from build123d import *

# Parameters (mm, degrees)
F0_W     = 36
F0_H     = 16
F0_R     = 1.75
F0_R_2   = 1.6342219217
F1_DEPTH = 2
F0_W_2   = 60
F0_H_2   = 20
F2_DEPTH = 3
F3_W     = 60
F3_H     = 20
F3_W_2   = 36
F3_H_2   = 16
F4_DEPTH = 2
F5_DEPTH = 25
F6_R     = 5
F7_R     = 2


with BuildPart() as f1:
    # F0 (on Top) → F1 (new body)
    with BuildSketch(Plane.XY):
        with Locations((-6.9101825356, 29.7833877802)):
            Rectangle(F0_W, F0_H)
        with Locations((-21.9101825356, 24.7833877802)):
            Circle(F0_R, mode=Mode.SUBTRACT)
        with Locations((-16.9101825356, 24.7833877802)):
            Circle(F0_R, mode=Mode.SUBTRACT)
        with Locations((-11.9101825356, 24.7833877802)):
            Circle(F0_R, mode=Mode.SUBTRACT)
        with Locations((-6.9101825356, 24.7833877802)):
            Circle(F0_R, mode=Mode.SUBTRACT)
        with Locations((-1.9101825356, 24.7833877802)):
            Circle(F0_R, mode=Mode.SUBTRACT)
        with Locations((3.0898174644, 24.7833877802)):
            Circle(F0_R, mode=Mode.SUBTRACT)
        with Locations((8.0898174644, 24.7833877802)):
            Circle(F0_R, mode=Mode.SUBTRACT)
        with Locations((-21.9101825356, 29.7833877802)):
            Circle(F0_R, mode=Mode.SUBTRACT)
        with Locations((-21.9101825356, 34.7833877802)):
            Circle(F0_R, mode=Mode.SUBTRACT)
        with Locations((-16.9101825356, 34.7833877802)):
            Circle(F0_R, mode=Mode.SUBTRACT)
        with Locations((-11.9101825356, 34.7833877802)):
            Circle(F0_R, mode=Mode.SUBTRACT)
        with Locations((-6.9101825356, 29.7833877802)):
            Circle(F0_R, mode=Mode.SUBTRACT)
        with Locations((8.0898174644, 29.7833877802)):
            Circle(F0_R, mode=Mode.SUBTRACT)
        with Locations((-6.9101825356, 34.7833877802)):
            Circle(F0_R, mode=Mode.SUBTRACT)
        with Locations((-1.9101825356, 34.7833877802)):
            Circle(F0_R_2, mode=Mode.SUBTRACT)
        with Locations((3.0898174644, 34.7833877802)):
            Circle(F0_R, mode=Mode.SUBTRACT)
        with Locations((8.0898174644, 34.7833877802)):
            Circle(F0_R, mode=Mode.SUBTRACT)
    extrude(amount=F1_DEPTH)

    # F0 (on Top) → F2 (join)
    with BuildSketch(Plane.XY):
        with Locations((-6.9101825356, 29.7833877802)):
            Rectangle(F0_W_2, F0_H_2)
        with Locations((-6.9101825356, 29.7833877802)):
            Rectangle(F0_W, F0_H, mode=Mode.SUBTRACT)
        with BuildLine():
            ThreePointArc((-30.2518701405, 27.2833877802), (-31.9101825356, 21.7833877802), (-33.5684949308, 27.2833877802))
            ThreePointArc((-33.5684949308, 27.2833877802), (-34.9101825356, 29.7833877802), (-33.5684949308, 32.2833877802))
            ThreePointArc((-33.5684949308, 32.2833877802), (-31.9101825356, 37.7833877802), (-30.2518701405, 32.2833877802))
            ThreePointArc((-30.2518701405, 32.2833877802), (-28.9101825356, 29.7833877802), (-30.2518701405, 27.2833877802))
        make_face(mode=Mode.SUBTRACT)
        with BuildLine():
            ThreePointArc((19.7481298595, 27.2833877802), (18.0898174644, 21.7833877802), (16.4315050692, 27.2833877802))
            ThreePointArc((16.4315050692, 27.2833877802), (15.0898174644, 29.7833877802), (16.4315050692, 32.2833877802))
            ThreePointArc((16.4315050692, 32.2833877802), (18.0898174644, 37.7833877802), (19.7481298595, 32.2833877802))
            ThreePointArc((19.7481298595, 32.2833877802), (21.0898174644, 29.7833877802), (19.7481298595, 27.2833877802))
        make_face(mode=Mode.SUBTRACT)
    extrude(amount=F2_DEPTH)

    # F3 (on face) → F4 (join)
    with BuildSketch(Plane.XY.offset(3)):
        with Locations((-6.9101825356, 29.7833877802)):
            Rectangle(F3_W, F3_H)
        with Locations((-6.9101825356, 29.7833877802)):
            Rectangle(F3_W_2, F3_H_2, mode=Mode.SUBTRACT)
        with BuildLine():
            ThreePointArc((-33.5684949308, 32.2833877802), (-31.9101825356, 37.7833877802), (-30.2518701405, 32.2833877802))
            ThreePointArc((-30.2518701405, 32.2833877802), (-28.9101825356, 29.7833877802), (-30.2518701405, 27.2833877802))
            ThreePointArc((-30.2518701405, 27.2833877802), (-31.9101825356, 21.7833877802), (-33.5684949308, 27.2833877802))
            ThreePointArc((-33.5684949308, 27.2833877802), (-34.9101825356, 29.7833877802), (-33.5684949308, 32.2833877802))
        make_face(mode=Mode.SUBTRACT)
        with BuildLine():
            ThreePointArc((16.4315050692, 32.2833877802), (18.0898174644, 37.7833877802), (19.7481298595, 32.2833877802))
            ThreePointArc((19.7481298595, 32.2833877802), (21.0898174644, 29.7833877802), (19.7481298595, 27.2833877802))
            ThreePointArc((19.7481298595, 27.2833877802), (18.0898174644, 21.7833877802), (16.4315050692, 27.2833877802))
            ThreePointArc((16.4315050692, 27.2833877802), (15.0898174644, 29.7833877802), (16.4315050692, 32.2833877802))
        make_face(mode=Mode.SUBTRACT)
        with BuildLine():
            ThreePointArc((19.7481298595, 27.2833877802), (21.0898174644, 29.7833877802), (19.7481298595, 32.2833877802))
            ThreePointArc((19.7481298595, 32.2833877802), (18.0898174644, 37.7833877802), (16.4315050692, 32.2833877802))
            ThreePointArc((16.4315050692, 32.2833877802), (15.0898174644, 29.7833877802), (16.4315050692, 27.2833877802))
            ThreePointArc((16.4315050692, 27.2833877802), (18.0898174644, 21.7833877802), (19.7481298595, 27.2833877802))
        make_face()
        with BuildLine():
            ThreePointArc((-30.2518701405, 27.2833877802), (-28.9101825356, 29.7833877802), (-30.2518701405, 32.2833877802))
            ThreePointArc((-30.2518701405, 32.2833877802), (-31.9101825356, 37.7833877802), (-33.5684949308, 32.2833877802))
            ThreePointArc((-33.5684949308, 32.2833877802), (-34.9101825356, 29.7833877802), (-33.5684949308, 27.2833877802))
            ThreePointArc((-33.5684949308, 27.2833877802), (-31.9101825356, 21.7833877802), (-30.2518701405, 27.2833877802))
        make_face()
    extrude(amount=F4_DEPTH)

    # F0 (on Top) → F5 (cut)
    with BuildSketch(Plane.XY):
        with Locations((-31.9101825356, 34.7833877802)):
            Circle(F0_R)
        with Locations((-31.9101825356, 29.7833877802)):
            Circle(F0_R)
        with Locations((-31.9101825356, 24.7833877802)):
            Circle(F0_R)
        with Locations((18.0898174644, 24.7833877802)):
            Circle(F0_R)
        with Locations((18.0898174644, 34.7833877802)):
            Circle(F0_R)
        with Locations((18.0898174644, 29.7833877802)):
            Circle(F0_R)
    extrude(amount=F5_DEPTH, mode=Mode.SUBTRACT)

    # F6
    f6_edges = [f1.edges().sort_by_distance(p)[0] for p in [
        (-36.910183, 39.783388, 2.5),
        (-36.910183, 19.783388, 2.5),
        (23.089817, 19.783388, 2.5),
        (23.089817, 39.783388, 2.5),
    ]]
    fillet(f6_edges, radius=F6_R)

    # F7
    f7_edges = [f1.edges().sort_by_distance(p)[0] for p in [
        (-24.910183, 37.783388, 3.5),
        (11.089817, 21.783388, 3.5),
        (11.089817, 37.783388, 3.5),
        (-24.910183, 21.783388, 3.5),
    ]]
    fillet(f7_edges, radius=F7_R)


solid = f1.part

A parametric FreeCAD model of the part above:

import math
import FreeCAD as App
import Part
import Sketcher

V = App.Vector
Q = App.Units.Quantity


def edges_at(feature, points):
    """Names of the edges that pass closest to the given points."""
    edges = feature.Shape.Edges
    near = lambda p: min(range(len(edges)), key=lambda i: edges[i].distToShape(Part.Vertex(*p))[0])
    return sorted({f"Edge{near(p) + 1}" for p in points})


def add_polygon(sketch, points):
    """Adds a closed chain of lines whose ends are joined by coincident constraints."""
    first, n = sketch.GeometryCount, len(points)
    for a, b in zip(points, points[1:] + points[:1]):
        sketch.addGeometry(Part.LineSegment(App.Vector(*a, 0), App.Vector(*b, 0)), False)
    for i in range(n):
        sketch.addConstraint(Sketcher.Constraint("Coincident", first + i, 2, first + (i + 1) % n, 1))

doc = App.newDocument("Part")
body = doc.addObject("PartDesign::Body", "Body")

sketch1 = body.newObject("Sketcher::SketchObject", "Sketch")
sketch1.AttachmentSupport = (doc.getObject("XY_Plane"), [""])
sketch1.MapMode = "FlatFace"
add_polygon(sketch1, [(-24.9, 37.8), (-24.9, 21.8), (11.1, 21.8), (11.1, 37.8)])
sketch1.addGeometry(Part.Circle(V(-21.9, 24.8, 0), V(0, 0, 1), 1.8), False)
sketch1.addGeometry(Part.Circle(V(-16.9, 24.8, 0), V(0, 0, 1), 1.8), False)
sketch1.addGeometry(Part.Circle(V(-11.9, 24.8, 0), V(0, 0, 1), 1.8), False)
sketch1.addGeometry(Part.Circle(V(-6.9, 24.8, 0), V(0, 0, 1), 1.8), False)
sketch1.addGeometry(Part.Circle(V(-1.9, 24.8, 0), V(0, 0, 1), 1.8), False)
sketch1.addGeometry(Part.Circle(V(3.1, 24.8, 0), V(0, 0, 1), 1.8), False)
sketch1.addGeometry(Part.Circle(V(8.1, 24.8, 0), V(0, 0, 1), 1.8), False)
sketch1.addGeometry(Part.Circle(V(-21.9, 29.8, 0), V(0, 0, 1), 1.8), False)
sketch1.addGeometry(Part.Circle(V(-21.9, 34.8, 0), V(0, 0, 1), 1.8), False)
sketch1.addGeometry(Part.Circle(V(-16.9, 34.8, 0), V(0, 0, 1), 1.8), False)
sketch1.addGeometry(Part.Circle(V(-11.9, 34.8, 0), V(0, 0, 1), 1.8), False)
sketch1.addGeometry(Part.Circle(V(-6.9, 29.8, 0), V(0, 0, 1), 1.8), False)
sketch1.addGeometry(Part.Circle(V(8.1, 29.8, 0), V(0, 0, 1), 1.8), False)
sketch1.addGeometry(Part.Circle(V(-6.9, 34.8, 0), V(0, 0, 1), 1.8), False)
sketch1.addGeometry(Part.Circle(V(-1.9, 34.8, 0), V(0, 0, 1), 1.6), False)
sketch1.addGeometry(Part.Circle(V(3.1, 34.8, 0), V(0, 0, 1), 1.8), False)
sketch1.addGeometry(Part.Circle(V(8.1, 34.8, 0), V(0, 0, 1), 1.8), False)
sketch1.addConstraint(Sketcher.Constraint("Vertical", 0))
sketch1.addConstraint(Sketcher.Constraint("Horizontal", 1))
sketch1.addConstraint(Sketcher.Constraint("Vertical", 2))
sketch1.addConstraint(Sketcher.Constraint("Horizontal", 3))
sketch1.addConstraint(Sketcher.Constraint("Equal", 4, 5))
sketch1.addConstraint(Sketcher.Constraint("Equal", 5, 6))
sketch1.addConstraint(Sketcher.Constraint("Equal", 6, 7))
sketch1.addConstraint(Sketcher.Constraint("Equal", 7, 8))
sketch1.addConstraint(Sketcher.Constraint("Equal", 8, 9))
sketch1.addConstraint(Sketcher.Constraint("Equal", 9, 10))
sketch1.addConstraint(Sketcher.Constraint("Equal", 10, 11))
sketch1.addConstraint(Sketcher.Constraint("Equal", 11, 12))
sketch1.addConstraint(Sketcher.Constraint("Equal", 12, 13))
sketch1.addConstraint(Sketcher.Constraint("Equal", 13, 14))
sketch1.addConstraint(Sketcher.Constraint("Equal", 14, 15))
sketch1.addConstraint(Sketcher.Constraint("Equal", 15, 16))
sketch1.addConstraint(Sketcher.Constraint("Equal", 16, 17))
sketch1.addConstraint(Sketcher.Constraint("Equal", 17, 19))
sketch1.addConstraint(Sketcher.Constraint("Equal", 19, 20))
sketch1.addConstraint(Sketcher.Constraint("Horizontal", 4, 3, 5, 3))
sketch1.addConstraint(Sketcher.Constraint("Horizontal", 5, 3, 6, 3))
sketch1.addConstraint(Sketcher.Constraint("Horizontal", 6, 3, 7, 3))
sketch1.addConstraint(Sketcher.Constraint("Horizontal", 7, 3, 8, 3))
sketch1.addConstraint(Sketcher.Constraint("Horizontal", 8, 3, 9, 3))
sketch1.addConstraint(Sketcher.Constraint("Horizontal", 9, 3, 10, 3))
sketch1.addConstraint(Sketcher.Constraint("Horizontal", 12, 3, 13, 3))
sketch1.addConstraint(Sketcher.Constraint("Horizontal", 13, 3, 14, 3))
sketch1.addConstraint(Sketcher.Constraint("Horizontal", 11, 3, 15, 3))
sketch1.addConstraint(Sketcher.Constraint("Horizontal", 15, 3, 16, 3))
sketch1.addConstraint(Sketcher.Constraint("Horizontal", 14, 3, 17, 3))
sketch1.addConstraint(Sketcher.Constraint("Horizontal", 17, 3, 18, 3))
sketch1.addConstraint(Sketcher.Constraint("Horizontal", 18, 3, 19, 3))
sketch1.addConstraint(Sketcher.Constraint("Horizontal", 19, 3, 20, 3))
sketch1.addConstraint(Sketcher.Constraint("Vertical", 4, 3, 11, 3))
sketch1.addConstraint(Sketcher.Constraint("Vertical", 11, 3, 12, 3))
sketch1.addConstraint(Sketcher.Constraint("Vertical", 5, 3, 13, 3))
sketch1.addConstraint(Sketcher.Constraint("Vertical", 6, 3, 14, 3))
sketch1.addConstraint(Sketcher.Constraint("Vertical", 7, 3, 15, 3))
sketch1.addConstraint(Sketcher.Constraint("Vertical", 10, 3, 16, 3))
sketch1.addConstraint(Sketcher.Constraint("Vertical", 15, 3, 17, 3))
sketch1.addConstraint(Sketcher.Constraint("Vertical", 8, 3, 18, 3))
sketch1.addConstraint(Sketcher.Constraint("Vertical", 9, 3, 19, 3))
sketch1.addConstraint(Sketcher.Constraint("Vertical", 16, 3, 20, 3))
sketch1.addConstraint(Sketcher.Constraint("Diameter", 4, Q("3.5 mm")))
sketch1.addConstraint(Sketcher.Constraint("DistanceX", 1, 1, 1, 2, Q("36 mm")))
sketch1.addConstraint(Sketcher.Constraint("DistanceY", 0, 2, 0, 1, Q("16 mm")))
sketch1.addConstraint(Sketcher.Constraint("DistanceX", 4, 3, 5, 3, Q("5 mm")))
sketch1.addConstraint(Sketcher.Constraint("DistanceX", 5, 3, 6, 3, Q("5 mm")))
sketch1.addConstraint(Sketcher.Constraint("DistanceX", 6, 3, 7, 3, Q("5 mm")))
sketch1.addConstraint(Sketcher.Constraint("DistanceX", 7, 3, 8, 3, Q("5 mm")))
sketch1.addConstraint(Sketcher.Constraint("DistanceX", 8, 3, 9, 3, Q("5 mm")))
sketch1.addConstraint(Sketcher.Constraint("DistanceX", 9, 3, 10, 3, Q("5 mm")))
sketch1.addConstraint(Sketcher.Constraint("DistanceY", 4, 3, 11, 3, Q("5 mm")))
sketch1.addConstraint(Sketcher.Constraint("DistanceY", 11, 3, 12, 3, Q("5 mm")))
sketch1.addConstraint(Sketcher.Constraint("DistanceX", 0, 2, 4, 3, Q("3 mm")))
sketch1.addConstraint(Sketcher.Constraint("DistanceY", 0, 2, 4, 3, Q("3 mm")))
sketch1.addConstraint(Sketcher.Constraint("Diameter", 18, Q("3.268444 mm")))
sketch1.addConstraint(Sketcher.Constraint("DistanceX", 4, 3, -1, 1, Q("21.910183 mm")))
sketch1.addConstraint(Sketcher.Constraint("DistanceY", -1, 1, 4, 3, Q("24.783388 mm")))
pad1 = body.newObject("PartDesign::Pad", "Pad")
pad1.Profile = sketch1
pad1.Length = 2

sketch2 = body.newObject("Sketcher::SketchObject", "Sketch001")
sketch2.AttachmentSupport = (doc.getObject("XY_Plane"), [""])
sketch2.MapMode = "FlatFace"
add_polygon(sketch2, [(-36.9, 39.8), (-36.9, 19.8), (23.1, 19.8), (23.1, 39.8)])
sketch2.addGeometry(Part.ArcOfCircle(Part.Circle(V(-31.9, 29.8, 0), V(0, 0, 1), 3), math.radians(-56), math.radians(56)), False)
sketch2.addGeometry(Part.ArcOfCircle(Part.Circle(V(-31.9, 24.8, 0), V(0, 0, 1), 3), math.radians(124), math.radians(416)), False)
sketch2.addGeometry(Part.ArcOfCircle(Part.Circle(V(-31.9, 29.8, 0), V(0, 0, 1), 3), math.radians(124), math.radians(236)), False)
sketch2.addGeometry(Part.ArcOfCircle(Part.Circle(V(-31.9, 34.8, 0), V(0, 0, 1), 3), math.radians(-56), math.radians(236)), False)
sketch2.addGeometry(Part.ArcOfCircle(Part.Circle(V(18.1, 29.8, 0), V(0, 0, 1), 3), math.radians(-56), math.radians(56)), False)
sketch2.addGeometry(Part.ArcOfCircle(Part.Circle(V(18.1, 24.8, 0), V(0, 0, 1), 3), math.radians(124), math.radians(416)), False)
sketch2.addGeometry(Part.ArcOfCircle(Part.Circle(V(18.1, 29.8, 0), V(0, 0, 1), 3), math.radians(124), math.radians(236)), False)
sketch2.addGeometry(Part.ArcOfCircle(Part.Circle(V(18.1, 34.8, 0), V(0, 0, 1), 3), math.radians(-56), math.radians(236)), False)
add_polygon(sketch2, [(11.1, 21.8), (-24.9, 21.8), (-24.9, 37.8), (11.1, 37.8)])
sketch2.addConstraint(Sketcher.Constraint("Coincident", 4, 1, 5, 2))
sketch2.addConstraint(Sketcher.Constraint("Coincident", 5, 1, 6, 2))
sketch2.addConstraint(Sketcher.Constraint("Coincident", 6, 1, 7, 2))
sketch2.addConstraint(Sketcher.Constraint("Coincident", 7, 1, 4, 2))
sketch2.addConstraint(Sketcher.Constraint("Coincident", 8, 1, 9, 2))
sketch2.addConstraint(Sketcher.Constraint("Coincident", 9, 1, 10, 2))
sketch2.addConstraint(Sketcher.Constraint("Coincident", 10, 1, 11, 2))
sketch2.addConstraint(Sketcher.Constraint("Coincident", 11, 1, 8, 2))
sketch2.addConstraint(Sketcher.Constraint("Vertical", 0))
sketch2.addConstraint(Sketcher.Constraint("Horizontal", 1))
sketch2.addConstraint(Sketcher.Constraint("Vertical", 2))
sketch2.addConstraint(Sketcher.Constraint("Horizontal", 3))
sketch2.addConstraint(Sketcher.Constraint("Horizontal", 12))
sketch2.addConstraint(Sketcher.Constraint("Vertical", 13))
sketch2.addConstraint(Sketcher.Constraint("Horizontal", 14))
sketch2.addConstraint(Sketcher.Constraint("Vertical", 15))
sketch2.addConstraint(Sketcher.Constraint("Coincident", 6, 3, 4, 3))
sketch2.addConstraint(Sketcher.Constraint("Coincident", 10, 3, 8, 3))
sketch2.addConstraint(Sketcher.Constraint("Equal", 4, 5))
sketch2.addConstraint(Sketcher.Constraint("Equal", 5, 6))
sketch2.addConstraint(Sketcher.Constraint("Equal", 6, 7))
sketch2.addConstraint(Sketcher.Constraint("Equal", 7, 8))
sketch2.addConstraint(Sketcher.Constraint("Equal", 8, 9))
sketch2.addConstraint(Sketcher.Constraint("Equal", 9, 10))
sketch2.addConstraint(Sketcher.Constraint("Equal", 10, 11))
sketch2.addConstraint(Sketcher.Constraint("Horizontal", 6, 3, 8, 3))
sketch2.addConstraint(Sketcher.Constraint("Horizontal", 5, 3, 9, 3))
sketch2.addConstraint(Sketcher.Constraint("Horizontal", 7, 3, 11, 3))
sketch2.addConstraint(Sketcher.Constraint("Horizontal", 4, 1, 5, 1))
sketch2.addConstraint(Sketcher.Constraint("Horizontal", 6, 1, 7, 1))
sketch2.addConstraint(Sketcher.Constraint("Horizontal", 5, 1, 8, 1))
sketch2.addConstraint(Sketcher.Constraint("Horizontal", 7, 1, 10, 1))
sketch2.addConstraint(Sketcher.Constraint("Vertical", 5, 1, 6, 1))
sketch2.addConstraint(Sketcher.Constraint("Radius", 4, Q("3 mm")))
sketch2.addConstraint(Sketcher.Constraint("DistanceX", 1, 1, 1, 2, Q("60 mm")))
sketch2.addConstraint(Sketcher.Constraint("DistanceX", 12, 2, 12, 1, Q("36 mm")))
sketch2.addConstraint(Sketcher.Constraint("DistanceY", 0, 2, 0, 1, Q("20 mm")))
sketch2.addConstraint(Sketcher.Constraint("DistanceY", 13, 1, 13, 2, Q("16 mm")))
sketch2.addConstraint(Sketcher.Constraint("DistanceY", 5, 3, 4, 3, Q("5 mm")))
sketch2.addConstraint(Sketcher.Constraint("DistanceX", 4, 3, 8, 3, Q("50 mm")))
sketch2.addConstraint(Sketcher.Constraint("DistanceX", 0, 2, 5, 3, Q("5 mm")))
sketch2.addConstraint(Sketcher.Constraint("DistanceY", 0, 2, 5, 3, Q("5 mm")))
sketch2.addConstraint(Sketcher.Constraint("DistanceX", 5, 3, 12, 2, Q("7 mm")))
sketch2.addConstraint(Sketcher.Constraint("DistanceY", 12, 2, 5, 3, Q("3 mm")))
sketch2.addConstraint(Sketcher.Constraint("DistanceX", 4, 1, -1, 1, Q("30.25187 mm")))
sketch2.addConstraint(Sketcher.Constraint("DistanceY", -1, 1, 4, 3, Q("29.783388 mm")))
pad2 = body.newObject("PartDesign::Pad", "Pad001")
pad2.Profile = sketch2
pad2.Length = 3

sketch3 = body.newObject("Sketcher::SketchObject", "Sketch002")
sketch3.AttachmentSupport = (doc.getObject("XY_Plane"), [""])
sketch3.MapMode = "FlatFace"
sketch3.AttachmentOffset = App.Placement(V(0, 0, 3), App.Rotation())
add_polygon(sketch3, [(-37, 40), (-37, 20), (23, 20), (23, 40)])
add_polygon(sketch3, [(11, 22), (-25, 22), (-25, 38), (11, 38)])
sketch3.addConstraint(Sketcher.Constraint("Vertical", 0))
sketch3.addConstraint(Sketcher.Constraint("Horizontal", 1))
sketch3.addConstraint(Sketcher.Constraint("Vertical", 2))
sketch3.addConstraint(Sketcher.Constraint("Horizontal", 3))
sketch3.addConstraint(Sketcher.Constraint("Horizontal", 4))
sketch3.addConstraint(Sketcher.Constraint("Vertical", 5))
sketch3.addConstraint(Sketcher.Constraint("Horizontal", 6))
sketch3.addConstraint(Sketcher.Constraint("Vertical", 7))
sketch3.addConstraint(Sketcher.Constraint("DistanceX", 1, 1, 1, 2, Q("60 mm")))
sketch3.addConstraint(Sketcher.Constraint("DistanceX", 4, 2, 4, 1, Q("36 mm")))
sketch3.addConstraint(Sketcher.Constraint("DistanceY", 0, 2, 0, 1, Q("20 mm")))
sketch3.addConstraint(Sketcher.Constraint("DistanceY", 5, 1, 5, 2, Q("16 mm")))
sketch3.addConstraint(Sketcher.Constraint("DistanceX", 0, 2, 4, 2, Q("12 mm")))
sketch3.addConstraint(Sketcher.Constraint("DistanceY", 0, 2, 4, 2, Q("2 mm")))
sketch3.addConstraint(Sketcher.Constraint("DistanceX", 0, 2, -1, 1, Q("36.910183 mm")))
sketch3.addConstraint(Sketcher.Constraint("DistanceY", -1, 1, 0, 2, Q("19.783388 mm")))
pad3 = body.newObject("PartDesign::Pad", "Pad002")
pad3.Profile = sketch3
pad3.Length = 2

sketch4 = body.newObject("Sketcher::SketchObject", "Sketch003")
sketch4.AttachmentSupport = (doc.getObject("XY_Plane"), [""])
sketch4.MapMode = "FlatFace"
sketch4.addGeometry(Part.Circle(V(-31.9, 34.8, 0), V(0, 0, 1), 1.8), False)
sketch4.addGeometry(Part.Circle(V(-31.9, 29.8, 0), V(0, 0, 1), 1.8), False)
sketch4.addGeometry(Part.Circle(V(-31.9, 24.8, 0), V(0, 0, 1), 1.8), False)
sketch4.addGeometry(Part.Circle(V(18.1, 24.8, 0), V(0, 0, 1), 1.8), False)
sketch4.addGeometry(Part.Circle(V(18.1, 34.8, 0), V(0, 0, 1), 1.8), False)
sketch4.addGeometry(Part.Circle(V(18.1, 29.8, 0), V(0, 0, 1), 1.8), False)
sketch4.addConstraint(Sketcher.Constraint("Equal", 0, 1))
sketch4.addConstraint(Sketcher.Constraint("Equal", 1, 2))
sketch4.addConstraint(Sketcher.Constraint("Equal", 2, 3))
sketch4.addConstraint(Sketcher.Constraint("Equal", 3, 4))
sketch4.addConstraint(Sketcher.Constraint("Equal", 4, 5))
sketch4.addConstraint(Sketcher.Constraint("Horizontal", 2, 3, 3, 3))
sketch4.addConstraint(Sketcher.Constraint("Horizontal", 0, 3, 4, 3))
sketch4.addConstraint(Sketcher.Constraint("Horizontal", 1, 3, 5, 3))
sketch4.addConstraint(Sketcher.Constraint("Vertical", 0, 3, 1, 3))
sketch4.addConstraint(Sketcher.Constraint("Vertical", 1, 3, 2, 3))
sketch4.addConstraint(Sketcher.Constraint("Vertical", 3, 3, 4, 3))
sketch4.addConstraint(Sketcher.Constraint("Vertical", 4, 3, 5, 3))
sketch4.addConstraint(Sketcher.Constraint("Diameter", 0, Q("3.5 mm")))
sketch4.addConstraint(Sketcher.Constraint("DistanceY", 1, 3, 0, 3, Q("5 mm")))
sketch4.addConstraint(Sketcher.Constraint("DistanceY", 2, 3, 1, 3, Q("5 mm")))
sketch4.addConstraint(Sketcher.Constraint("DistanceX", 2, 3, 3, 3, Q("50 mm")))
sketch4.addConstraint(Sketcher.Constraint("DistanceX", 0, 3, -1, 1, Q("31.910183 mm")))
sketch4.addConstraint(Sketcher.Constraint("DistanceY", -1, 1, 0, 3, Q("34.783388 mm")))
pocket1 = body.newObject("PartDesign::Pocket", "Pocket")
pocket1.Profile = sketch4
pocket1.Length = 25
pocket1.Reversed = True
doc.recompute()

fillet = body.newObject("PartDesign::Fillet", "Fillet")
fillet.Base = (pocket1, edges_at(pocket1, [
    (-36.91, 39.783, 2.5),
    (-36.91, 19.783, 2.5),
    (23.09, 19.783, 2.5),
    (23.09, 39.783, 2.5),
]))
fillet.Radius = 5
doc.recompute()

fillet2 = body.newObject("PartDesign::Fillet", "Fillet001")
fillet2.Base = (fillet, edges_at(fillet, [
    (-24.91, 37.783, 3.5),
    (11.09, 21.783, 3.5),
    (11.09, 37.783, 3.5),
    (-24.91, 21.783, 3.5),
]))
fillet2.Radius = 2

doc.recompute()
